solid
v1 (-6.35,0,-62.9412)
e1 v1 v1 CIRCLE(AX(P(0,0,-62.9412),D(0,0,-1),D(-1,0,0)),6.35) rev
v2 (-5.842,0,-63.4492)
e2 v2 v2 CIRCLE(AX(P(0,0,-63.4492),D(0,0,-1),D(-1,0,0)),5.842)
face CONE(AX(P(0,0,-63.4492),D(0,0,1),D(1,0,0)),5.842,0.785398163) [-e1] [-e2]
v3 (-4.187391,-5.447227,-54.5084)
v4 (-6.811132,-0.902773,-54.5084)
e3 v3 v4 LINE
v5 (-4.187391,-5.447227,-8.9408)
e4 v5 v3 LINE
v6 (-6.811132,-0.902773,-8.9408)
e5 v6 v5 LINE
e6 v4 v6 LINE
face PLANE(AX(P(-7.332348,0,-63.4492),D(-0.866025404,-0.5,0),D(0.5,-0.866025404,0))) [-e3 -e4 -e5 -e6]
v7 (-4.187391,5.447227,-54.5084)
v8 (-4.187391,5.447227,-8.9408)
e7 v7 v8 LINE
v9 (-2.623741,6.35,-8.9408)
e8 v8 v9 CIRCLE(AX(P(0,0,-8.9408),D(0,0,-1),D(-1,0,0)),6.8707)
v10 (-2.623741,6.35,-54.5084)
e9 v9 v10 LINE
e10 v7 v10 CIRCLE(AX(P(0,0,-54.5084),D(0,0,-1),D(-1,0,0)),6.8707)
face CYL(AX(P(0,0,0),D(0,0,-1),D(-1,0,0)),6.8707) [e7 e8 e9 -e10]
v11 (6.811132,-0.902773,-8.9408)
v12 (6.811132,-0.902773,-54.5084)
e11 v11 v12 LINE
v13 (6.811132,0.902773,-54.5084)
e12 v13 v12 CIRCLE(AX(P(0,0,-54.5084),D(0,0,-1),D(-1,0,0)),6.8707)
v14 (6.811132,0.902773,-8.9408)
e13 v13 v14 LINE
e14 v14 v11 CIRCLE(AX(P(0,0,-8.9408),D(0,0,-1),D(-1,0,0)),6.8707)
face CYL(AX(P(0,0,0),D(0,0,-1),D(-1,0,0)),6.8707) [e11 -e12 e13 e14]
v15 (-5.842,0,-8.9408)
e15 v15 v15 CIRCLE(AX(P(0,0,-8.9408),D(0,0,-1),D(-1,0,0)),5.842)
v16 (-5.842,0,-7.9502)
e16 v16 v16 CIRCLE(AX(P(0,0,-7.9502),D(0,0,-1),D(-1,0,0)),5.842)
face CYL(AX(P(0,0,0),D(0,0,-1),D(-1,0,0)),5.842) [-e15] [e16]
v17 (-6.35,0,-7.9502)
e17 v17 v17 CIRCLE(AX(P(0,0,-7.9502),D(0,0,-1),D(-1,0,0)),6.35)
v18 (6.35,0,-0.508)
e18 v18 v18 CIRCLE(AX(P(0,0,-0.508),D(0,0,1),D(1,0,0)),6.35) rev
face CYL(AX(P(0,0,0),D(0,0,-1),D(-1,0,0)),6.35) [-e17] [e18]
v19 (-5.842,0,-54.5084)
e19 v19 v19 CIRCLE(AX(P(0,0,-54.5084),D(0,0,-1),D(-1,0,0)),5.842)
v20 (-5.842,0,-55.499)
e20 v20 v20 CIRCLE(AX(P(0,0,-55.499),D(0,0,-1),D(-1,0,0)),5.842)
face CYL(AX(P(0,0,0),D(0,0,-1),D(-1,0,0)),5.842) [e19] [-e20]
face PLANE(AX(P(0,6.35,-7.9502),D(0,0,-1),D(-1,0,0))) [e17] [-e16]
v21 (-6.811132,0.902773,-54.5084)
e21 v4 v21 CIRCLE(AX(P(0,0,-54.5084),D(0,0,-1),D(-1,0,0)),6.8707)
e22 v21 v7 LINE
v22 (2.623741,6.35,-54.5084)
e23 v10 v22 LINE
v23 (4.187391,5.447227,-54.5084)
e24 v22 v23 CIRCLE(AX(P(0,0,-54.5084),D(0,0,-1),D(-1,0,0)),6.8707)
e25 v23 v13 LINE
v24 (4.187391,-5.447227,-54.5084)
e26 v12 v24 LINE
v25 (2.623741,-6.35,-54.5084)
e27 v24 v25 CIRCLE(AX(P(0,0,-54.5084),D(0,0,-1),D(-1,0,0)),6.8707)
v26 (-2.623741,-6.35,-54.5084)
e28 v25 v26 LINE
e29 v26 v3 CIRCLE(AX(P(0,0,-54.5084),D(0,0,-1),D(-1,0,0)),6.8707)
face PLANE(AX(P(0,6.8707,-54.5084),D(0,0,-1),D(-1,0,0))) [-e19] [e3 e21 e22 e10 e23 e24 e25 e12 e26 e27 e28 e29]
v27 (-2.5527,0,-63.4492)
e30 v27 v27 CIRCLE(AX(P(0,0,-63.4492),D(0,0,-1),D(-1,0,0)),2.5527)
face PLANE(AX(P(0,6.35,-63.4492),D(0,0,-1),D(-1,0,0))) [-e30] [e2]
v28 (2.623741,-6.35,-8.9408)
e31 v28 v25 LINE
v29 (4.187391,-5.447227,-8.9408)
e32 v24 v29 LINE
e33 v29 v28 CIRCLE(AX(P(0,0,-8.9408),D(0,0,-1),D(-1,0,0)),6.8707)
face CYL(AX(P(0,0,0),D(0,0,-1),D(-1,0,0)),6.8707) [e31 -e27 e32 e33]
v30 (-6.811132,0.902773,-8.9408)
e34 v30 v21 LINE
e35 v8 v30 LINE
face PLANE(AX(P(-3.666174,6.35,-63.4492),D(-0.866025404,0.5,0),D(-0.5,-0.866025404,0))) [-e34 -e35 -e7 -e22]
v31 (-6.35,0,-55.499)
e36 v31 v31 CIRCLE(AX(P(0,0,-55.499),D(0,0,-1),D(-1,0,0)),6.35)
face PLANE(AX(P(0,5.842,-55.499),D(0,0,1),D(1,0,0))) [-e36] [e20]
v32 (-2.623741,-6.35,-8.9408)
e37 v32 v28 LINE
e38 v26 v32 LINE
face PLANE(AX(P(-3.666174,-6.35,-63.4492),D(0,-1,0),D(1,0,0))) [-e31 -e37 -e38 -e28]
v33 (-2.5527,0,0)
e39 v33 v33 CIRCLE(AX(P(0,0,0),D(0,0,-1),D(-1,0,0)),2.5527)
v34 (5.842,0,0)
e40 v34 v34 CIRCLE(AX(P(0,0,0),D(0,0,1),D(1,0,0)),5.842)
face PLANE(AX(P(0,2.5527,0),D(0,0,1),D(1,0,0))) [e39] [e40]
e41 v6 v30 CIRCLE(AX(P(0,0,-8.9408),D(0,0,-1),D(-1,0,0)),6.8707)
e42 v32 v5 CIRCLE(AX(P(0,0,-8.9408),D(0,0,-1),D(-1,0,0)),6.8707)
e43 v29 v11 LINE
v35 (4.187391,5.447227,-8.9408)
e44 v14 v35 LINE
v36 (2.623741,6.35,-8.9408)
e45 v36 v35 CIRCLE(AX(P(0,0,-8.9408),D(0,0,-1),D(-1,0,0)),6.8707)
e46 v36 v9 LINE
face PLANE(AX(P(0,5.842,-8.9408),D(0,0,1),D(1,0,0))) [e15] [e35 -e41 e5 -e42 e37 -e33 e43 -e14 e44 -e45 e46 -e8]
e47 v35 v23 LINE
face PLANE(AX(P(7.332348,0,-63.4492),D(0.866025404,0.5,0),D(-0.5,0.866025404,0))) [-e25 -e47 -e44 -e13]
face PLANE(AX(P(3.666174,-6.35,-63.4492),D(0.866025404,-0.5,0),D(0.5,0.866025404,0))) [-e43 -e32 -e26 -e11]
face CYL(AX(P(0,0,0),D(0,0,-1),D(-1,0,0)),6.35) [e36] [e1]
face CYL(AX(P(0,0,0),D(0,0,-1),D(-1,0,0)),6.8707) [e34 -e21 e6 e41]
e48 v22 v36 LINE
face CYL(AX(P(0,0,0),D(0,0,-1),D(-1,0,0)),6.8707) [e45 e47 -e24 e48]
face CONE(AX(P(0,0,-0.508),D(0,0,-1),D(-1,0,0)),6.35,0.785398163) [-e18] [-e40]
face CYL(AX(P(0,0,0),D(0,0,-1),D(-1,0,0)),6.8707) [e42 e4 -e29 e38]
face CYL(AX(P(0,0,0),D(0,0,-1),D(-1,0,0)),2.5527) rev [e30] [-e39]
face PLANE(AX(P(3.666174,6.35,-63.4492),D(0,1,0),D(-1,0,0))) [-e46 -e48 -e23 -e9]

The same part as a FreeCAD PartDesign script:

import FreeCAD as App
import Part
import Sketcher
from FreeCAD import Vector
Q = App.Units.Quantity


def edges_at(feature, points):
    """Names of the edges that pass closest to the given points."""
    edges = feature.Shape.Edges
    near = lambda p: min(range(len(edges)), key=lambda i: edges[i].distToShape(Part.Vertex(*p))[0])
    return sorted({f"Edge{near(p) + 1}" for p in points})

doc = App.newDocument("Part")
params = doc.addObject("Spreadsheet::Sheet", "Params")
for row, (alias, value) in enumerate([
    ("sketch1_width", "0.02 in"),
    ("sketch1_height", "2.498 in"),
    ("sketch1_height2", "0.313 in"),
    ("sketch1_height3", "0.039 in"),
    ("revolution_angle", "360 deg"),
    ("chamfer_size", "0.02 in"),
], start=1):
    params.set(f"A{row}", alias)
    params.set(f"B{row}", "=" + value)
    params.setAlias(f"B{row}", alias)

body = doc.addObject("PartDesign::Body", "Body")

sketch1 = body.newObject("Sketcher::SketchObject", "Sketch")
sketch1.AttachmentSupport = (doc.getObject("YZ_Plane"), [""])
sketch1.MapMode = "FlatFace"
sketch1.addGeometry([
    Part.LineSegment(Vector(6.35, 0, 0), Vector(2.5527, 0, 0)),
    Part.LineSegment(Vector(2.5527, 0, 0), Vector(2.5527, -63.4492, 0)),
    Part.LineSegment(Vector(2.5527, -63.4492, 0), Vector(6.35, -63.4492, 0)),
    Part.LineSegment(Vector(6.35, -63.4492, 0), Vector(6.35, -55.499, 0)),
    Part.LineSegment(Vector(6.35, -55.499, 0), Vector(5.842, -55.499, 0)),
    Part.LineSegment(Vector(5.842, -55.499, 0), Vector(5.842, -54.5084, 0)),
    Part.LineSegment(Vector(5.842, -54.5084, 0), Vector(6.8707, -54.5084, 0)),
    Part.LineSegment(Vector(6.8707, -54.5084, 0), Vector(6.8707, -8.9408, 0)),
    Part.LineSegment(Vector(6.8707, -8.9408, 0), Vector(5.842, -8.9408, 0)),
    Part.LineSegment(Vector(5.842, -8.9408, 0), Vector(5.842, -7.9502, 0)),
    Part.LineSegment(Vector(5.842, -7.9502, 0), Vector(6.35, -7.9502, 0)),
    Part.LineSegment(Vector(6.35, -7.9502, 0), Vector(6.35, 0, 0)),
], False)
sketch1.addConstraint([
    Sketcher.Constraint("Coincident", 0, 2, 1, 1),
    Sketcher.Constraint("Coincident", 1, 2, 2, 1),
    Sketcher.Constraint("Coincident", 2, 2, 3, 1),
    Sketcher.Constraint("Coincident", 3, 2, 4, 1),
    Sketcher.Constraint("Coincident", 4, 2, 5, 1),
    Sketcher.Constraint("Coincident", 5, 2, 6, 1),
    Sketcher.Constraint("Coincident", 6, 2, 7, 1),
    Sketcher.Constraint("Coincident", 7, 2, 8, 1),
    Sketcher.Constraint("Coincident", 8, 2, 9, 1),
    Sketcher.Constraint("Coincident", 9, 2, 10, 1),
    Sketcher.Constraint("Coincident", 10, 2, 11, 1),
    Sketcher.Constraint("Coincident", 11, 2, 0, 1),
    Sketcher.Constraint("Horizontal", 0),
    Sketcher.Constraint("Vertical", 1),
    Sketcher.Constraint("Horizontal", 2),
    Sketcher.Constraint("Vertical", 3),
    Sketcher.Constraint("Horizontal", 4),
    Sketcher.Constraint("Vertical", 5),
    Sketcher.Constraint("Horizontal", 6),
    Sketcher.Constraint("Vertical", 7),
    Sketcher.Constraint("Horizontal", 8),
    Sketcher.Constraint("Vertical", 9),
    Sketcher.Constraint("Horizontal", 10),
    Sketcher.Constraint("Vertical", 11),
    Sketcher.Constraint("PointOnObject", 0, 2, -1),
    Sketcher.Constraint("Vertical", 5, 2, 8, 2),
    Sketcher.Constraint("Vertical", 3, 2, 10, 2),
    Sketcher.Constraint("Equal", 5, 9),
    Sketcher.Constraint("Equal", 3, 11),
    Sketcher.Constraint("DistanceX", 4, 2, 4, 1, Q("0.02 in")),
    Sketcher.Constraint("DistanceY", 1, 2, 1, 1, Q("2.498 in")),
    Sketcher.Constraint("DistanceY", 3, 1, 3, 2, Q("0.313 in")),
    Sketcher.Constraint("DistanceY", 5, 1, 5, 2, Q("0.039 in")),
    Sketcher.Constraint("DistanceX", -1, 1, 2, 2, Q("0.25 in")),
    Sketcher.Constraint("DistanceX", 1, 2, 6, 2, Q("0.17 in")),
    Sketcher.Constraint("DistanceX", 0, 2, 0, 1, Q("0.1495 in")),
])
sketch1.setExpression("Constraints[29]", "Params.sketch1_width")
sketch1.setExpression("Constraints[30]", "Params.sketch1_height")
sketch1.setExpression("Constraints[31]", "Params.sketch1_height2")
sketch1.setExpression("Constraints[32]", "Params.sketch1_height3")
revolution = body.newObject("PartDesign::Revolution", "Revolution")
revolution.Profile = sketch1
revolution.ReferenceAxis = (sketch1, ["V_Axis"])
revolution.setExpression("Angle", "Params.revolution_angle")

sketch2 = body.newObject("Sketcher::SketchObject", "Sketch001")
sketch2.AttachmentSupport = (doc.getObject("XY_Plane"), [""])
sketch2.MapMode = "FlatFace"
sketch2.AttachmentOffset = App.Placement(Vector(0, 0, -0.352 * 25.4), App.Rotation())
sketch2.addGeometry([
    Part.LineSegment(Vector(-14.507, 14.507, 0), Vector(-14.507, -14.507, 0)),
    Part.LineSegment(Vector(-14.507, -14.507, 0), Vector(14.507, -14.507, 0)),
    Part.LineSegment(Vector(14.507, -14.507, 0), Vector(14.507, 14.507, 0)),
    Part.LineSegment(Vector(14.507, 14.507, 0), Vector(-14.507, 14.507, 0)),
    Part.LineSegment(Vector(-7.332348, 0, 0), Vector(-3.666174, 6.35, 0)),
    Part.LineSegment(Vector(-3.666174, 6.35, 0), Vector(3.666174, 6.35, 0)),
    Part.LineSegment(Vector(3.666174, 6.35, 0), Vector(7.332348, 0, 0)),
    Part.LineSegment(Vector(7.332348, 0, 0), Vector(3.666174, -6.35, 0)),
    Part.LineSegment(Vector(3.666174, -6.35, 0), Vector(-3.666174, -6.35, 0)),
    Part.LineSegment(Vector(-3.666174, -6.35, 0), Vector(-7.332348, 0, 0)),
], False)
sketch2.addConstraint([
    Sketcher.Constraint("Coincident", 0, 2, 1, 1),
    Sketcher.Constraint("Coincident", 1, 2, 2, 1),
    Sketcher.Constraint("Coincident", 2, 2, 3, 1),
    Sketcher.Constraint("Coincident", 3, 2, 0, 1),
    Sketcher.Constraint("Coincident", 4, 2, 5, 1),
    Sketcher.Constraint("Coincident", 5, 2, 6, 1),
    Sketcher.Constraint("Coincident", 6, 2, 7, 1),
    Sketcher.Constraint("Coincident", 7, 2, 8, 1),
    Sketcher.Constraint("Coincident", 8, 2, 9, 1),
    Sketcher.Constraint("Coincident", 9, 2, 4, 1),
    Sketcher.Constraint("Vertical", 0),
    Sketcher.Constraint("Horizontal", 1),
    Sketcher.Constraint("Vertical", 2),
    Sketcher.Constraint("Horizontal", 3),
    Sketcher.Constraint("Horizontal", 5),
    Sketcher.Constraint("Horizontal", 8),
    Sketcher.Constraint("Symmetric", 0, 2, 2, 2, -1, 1),
    Sketcher.Constraint("Symmetric", 4, 2, 7, 2, -1, 1),
    Sketcher.Constraint("Symmetric", 6, 2, 9, 2, -1, 1),
    Sketcher.Constraint("PointOnObject", 6, 2, -1),
    Sketcher.Constraint("Parallel", 6, 9),
    Sketcher.Constraint("Vertical", 5, 2, 7, 2),
    Sketcher.Constraint("Equal", 3, 0),
    Sketcher.Constraint("Angle", 4, Q("60 deg")),
    Sketcher.Constraint("DistanceY", 7, 2, 5, 2, Q("0.5 in")),
    Sketcher.Constraint("DistanceX", 1, 1, 1, 2, Q("29.014 mm")),
    Sketcher.Constraint("DistanceX", 5, 1, 5, 2, Q("7.332348 mm")),
])
pocket1 = body.newObject("PartDesign::Pocket", "Pocket")
pocket1.Profile = sketch2
pocket1.Type = "ThroughAll"
doc.recompute()

chamfer = body.newObject("PartDesign::Chamfer", "Chamfer")
chamfer.Base = (pocket1, edges_at(pocket1, [(6.35, 0, -63.449), (6.35, 0, 0)]))
chamfer.setExpression("Size", "Params.chamfer_size")

doc.recompute()
